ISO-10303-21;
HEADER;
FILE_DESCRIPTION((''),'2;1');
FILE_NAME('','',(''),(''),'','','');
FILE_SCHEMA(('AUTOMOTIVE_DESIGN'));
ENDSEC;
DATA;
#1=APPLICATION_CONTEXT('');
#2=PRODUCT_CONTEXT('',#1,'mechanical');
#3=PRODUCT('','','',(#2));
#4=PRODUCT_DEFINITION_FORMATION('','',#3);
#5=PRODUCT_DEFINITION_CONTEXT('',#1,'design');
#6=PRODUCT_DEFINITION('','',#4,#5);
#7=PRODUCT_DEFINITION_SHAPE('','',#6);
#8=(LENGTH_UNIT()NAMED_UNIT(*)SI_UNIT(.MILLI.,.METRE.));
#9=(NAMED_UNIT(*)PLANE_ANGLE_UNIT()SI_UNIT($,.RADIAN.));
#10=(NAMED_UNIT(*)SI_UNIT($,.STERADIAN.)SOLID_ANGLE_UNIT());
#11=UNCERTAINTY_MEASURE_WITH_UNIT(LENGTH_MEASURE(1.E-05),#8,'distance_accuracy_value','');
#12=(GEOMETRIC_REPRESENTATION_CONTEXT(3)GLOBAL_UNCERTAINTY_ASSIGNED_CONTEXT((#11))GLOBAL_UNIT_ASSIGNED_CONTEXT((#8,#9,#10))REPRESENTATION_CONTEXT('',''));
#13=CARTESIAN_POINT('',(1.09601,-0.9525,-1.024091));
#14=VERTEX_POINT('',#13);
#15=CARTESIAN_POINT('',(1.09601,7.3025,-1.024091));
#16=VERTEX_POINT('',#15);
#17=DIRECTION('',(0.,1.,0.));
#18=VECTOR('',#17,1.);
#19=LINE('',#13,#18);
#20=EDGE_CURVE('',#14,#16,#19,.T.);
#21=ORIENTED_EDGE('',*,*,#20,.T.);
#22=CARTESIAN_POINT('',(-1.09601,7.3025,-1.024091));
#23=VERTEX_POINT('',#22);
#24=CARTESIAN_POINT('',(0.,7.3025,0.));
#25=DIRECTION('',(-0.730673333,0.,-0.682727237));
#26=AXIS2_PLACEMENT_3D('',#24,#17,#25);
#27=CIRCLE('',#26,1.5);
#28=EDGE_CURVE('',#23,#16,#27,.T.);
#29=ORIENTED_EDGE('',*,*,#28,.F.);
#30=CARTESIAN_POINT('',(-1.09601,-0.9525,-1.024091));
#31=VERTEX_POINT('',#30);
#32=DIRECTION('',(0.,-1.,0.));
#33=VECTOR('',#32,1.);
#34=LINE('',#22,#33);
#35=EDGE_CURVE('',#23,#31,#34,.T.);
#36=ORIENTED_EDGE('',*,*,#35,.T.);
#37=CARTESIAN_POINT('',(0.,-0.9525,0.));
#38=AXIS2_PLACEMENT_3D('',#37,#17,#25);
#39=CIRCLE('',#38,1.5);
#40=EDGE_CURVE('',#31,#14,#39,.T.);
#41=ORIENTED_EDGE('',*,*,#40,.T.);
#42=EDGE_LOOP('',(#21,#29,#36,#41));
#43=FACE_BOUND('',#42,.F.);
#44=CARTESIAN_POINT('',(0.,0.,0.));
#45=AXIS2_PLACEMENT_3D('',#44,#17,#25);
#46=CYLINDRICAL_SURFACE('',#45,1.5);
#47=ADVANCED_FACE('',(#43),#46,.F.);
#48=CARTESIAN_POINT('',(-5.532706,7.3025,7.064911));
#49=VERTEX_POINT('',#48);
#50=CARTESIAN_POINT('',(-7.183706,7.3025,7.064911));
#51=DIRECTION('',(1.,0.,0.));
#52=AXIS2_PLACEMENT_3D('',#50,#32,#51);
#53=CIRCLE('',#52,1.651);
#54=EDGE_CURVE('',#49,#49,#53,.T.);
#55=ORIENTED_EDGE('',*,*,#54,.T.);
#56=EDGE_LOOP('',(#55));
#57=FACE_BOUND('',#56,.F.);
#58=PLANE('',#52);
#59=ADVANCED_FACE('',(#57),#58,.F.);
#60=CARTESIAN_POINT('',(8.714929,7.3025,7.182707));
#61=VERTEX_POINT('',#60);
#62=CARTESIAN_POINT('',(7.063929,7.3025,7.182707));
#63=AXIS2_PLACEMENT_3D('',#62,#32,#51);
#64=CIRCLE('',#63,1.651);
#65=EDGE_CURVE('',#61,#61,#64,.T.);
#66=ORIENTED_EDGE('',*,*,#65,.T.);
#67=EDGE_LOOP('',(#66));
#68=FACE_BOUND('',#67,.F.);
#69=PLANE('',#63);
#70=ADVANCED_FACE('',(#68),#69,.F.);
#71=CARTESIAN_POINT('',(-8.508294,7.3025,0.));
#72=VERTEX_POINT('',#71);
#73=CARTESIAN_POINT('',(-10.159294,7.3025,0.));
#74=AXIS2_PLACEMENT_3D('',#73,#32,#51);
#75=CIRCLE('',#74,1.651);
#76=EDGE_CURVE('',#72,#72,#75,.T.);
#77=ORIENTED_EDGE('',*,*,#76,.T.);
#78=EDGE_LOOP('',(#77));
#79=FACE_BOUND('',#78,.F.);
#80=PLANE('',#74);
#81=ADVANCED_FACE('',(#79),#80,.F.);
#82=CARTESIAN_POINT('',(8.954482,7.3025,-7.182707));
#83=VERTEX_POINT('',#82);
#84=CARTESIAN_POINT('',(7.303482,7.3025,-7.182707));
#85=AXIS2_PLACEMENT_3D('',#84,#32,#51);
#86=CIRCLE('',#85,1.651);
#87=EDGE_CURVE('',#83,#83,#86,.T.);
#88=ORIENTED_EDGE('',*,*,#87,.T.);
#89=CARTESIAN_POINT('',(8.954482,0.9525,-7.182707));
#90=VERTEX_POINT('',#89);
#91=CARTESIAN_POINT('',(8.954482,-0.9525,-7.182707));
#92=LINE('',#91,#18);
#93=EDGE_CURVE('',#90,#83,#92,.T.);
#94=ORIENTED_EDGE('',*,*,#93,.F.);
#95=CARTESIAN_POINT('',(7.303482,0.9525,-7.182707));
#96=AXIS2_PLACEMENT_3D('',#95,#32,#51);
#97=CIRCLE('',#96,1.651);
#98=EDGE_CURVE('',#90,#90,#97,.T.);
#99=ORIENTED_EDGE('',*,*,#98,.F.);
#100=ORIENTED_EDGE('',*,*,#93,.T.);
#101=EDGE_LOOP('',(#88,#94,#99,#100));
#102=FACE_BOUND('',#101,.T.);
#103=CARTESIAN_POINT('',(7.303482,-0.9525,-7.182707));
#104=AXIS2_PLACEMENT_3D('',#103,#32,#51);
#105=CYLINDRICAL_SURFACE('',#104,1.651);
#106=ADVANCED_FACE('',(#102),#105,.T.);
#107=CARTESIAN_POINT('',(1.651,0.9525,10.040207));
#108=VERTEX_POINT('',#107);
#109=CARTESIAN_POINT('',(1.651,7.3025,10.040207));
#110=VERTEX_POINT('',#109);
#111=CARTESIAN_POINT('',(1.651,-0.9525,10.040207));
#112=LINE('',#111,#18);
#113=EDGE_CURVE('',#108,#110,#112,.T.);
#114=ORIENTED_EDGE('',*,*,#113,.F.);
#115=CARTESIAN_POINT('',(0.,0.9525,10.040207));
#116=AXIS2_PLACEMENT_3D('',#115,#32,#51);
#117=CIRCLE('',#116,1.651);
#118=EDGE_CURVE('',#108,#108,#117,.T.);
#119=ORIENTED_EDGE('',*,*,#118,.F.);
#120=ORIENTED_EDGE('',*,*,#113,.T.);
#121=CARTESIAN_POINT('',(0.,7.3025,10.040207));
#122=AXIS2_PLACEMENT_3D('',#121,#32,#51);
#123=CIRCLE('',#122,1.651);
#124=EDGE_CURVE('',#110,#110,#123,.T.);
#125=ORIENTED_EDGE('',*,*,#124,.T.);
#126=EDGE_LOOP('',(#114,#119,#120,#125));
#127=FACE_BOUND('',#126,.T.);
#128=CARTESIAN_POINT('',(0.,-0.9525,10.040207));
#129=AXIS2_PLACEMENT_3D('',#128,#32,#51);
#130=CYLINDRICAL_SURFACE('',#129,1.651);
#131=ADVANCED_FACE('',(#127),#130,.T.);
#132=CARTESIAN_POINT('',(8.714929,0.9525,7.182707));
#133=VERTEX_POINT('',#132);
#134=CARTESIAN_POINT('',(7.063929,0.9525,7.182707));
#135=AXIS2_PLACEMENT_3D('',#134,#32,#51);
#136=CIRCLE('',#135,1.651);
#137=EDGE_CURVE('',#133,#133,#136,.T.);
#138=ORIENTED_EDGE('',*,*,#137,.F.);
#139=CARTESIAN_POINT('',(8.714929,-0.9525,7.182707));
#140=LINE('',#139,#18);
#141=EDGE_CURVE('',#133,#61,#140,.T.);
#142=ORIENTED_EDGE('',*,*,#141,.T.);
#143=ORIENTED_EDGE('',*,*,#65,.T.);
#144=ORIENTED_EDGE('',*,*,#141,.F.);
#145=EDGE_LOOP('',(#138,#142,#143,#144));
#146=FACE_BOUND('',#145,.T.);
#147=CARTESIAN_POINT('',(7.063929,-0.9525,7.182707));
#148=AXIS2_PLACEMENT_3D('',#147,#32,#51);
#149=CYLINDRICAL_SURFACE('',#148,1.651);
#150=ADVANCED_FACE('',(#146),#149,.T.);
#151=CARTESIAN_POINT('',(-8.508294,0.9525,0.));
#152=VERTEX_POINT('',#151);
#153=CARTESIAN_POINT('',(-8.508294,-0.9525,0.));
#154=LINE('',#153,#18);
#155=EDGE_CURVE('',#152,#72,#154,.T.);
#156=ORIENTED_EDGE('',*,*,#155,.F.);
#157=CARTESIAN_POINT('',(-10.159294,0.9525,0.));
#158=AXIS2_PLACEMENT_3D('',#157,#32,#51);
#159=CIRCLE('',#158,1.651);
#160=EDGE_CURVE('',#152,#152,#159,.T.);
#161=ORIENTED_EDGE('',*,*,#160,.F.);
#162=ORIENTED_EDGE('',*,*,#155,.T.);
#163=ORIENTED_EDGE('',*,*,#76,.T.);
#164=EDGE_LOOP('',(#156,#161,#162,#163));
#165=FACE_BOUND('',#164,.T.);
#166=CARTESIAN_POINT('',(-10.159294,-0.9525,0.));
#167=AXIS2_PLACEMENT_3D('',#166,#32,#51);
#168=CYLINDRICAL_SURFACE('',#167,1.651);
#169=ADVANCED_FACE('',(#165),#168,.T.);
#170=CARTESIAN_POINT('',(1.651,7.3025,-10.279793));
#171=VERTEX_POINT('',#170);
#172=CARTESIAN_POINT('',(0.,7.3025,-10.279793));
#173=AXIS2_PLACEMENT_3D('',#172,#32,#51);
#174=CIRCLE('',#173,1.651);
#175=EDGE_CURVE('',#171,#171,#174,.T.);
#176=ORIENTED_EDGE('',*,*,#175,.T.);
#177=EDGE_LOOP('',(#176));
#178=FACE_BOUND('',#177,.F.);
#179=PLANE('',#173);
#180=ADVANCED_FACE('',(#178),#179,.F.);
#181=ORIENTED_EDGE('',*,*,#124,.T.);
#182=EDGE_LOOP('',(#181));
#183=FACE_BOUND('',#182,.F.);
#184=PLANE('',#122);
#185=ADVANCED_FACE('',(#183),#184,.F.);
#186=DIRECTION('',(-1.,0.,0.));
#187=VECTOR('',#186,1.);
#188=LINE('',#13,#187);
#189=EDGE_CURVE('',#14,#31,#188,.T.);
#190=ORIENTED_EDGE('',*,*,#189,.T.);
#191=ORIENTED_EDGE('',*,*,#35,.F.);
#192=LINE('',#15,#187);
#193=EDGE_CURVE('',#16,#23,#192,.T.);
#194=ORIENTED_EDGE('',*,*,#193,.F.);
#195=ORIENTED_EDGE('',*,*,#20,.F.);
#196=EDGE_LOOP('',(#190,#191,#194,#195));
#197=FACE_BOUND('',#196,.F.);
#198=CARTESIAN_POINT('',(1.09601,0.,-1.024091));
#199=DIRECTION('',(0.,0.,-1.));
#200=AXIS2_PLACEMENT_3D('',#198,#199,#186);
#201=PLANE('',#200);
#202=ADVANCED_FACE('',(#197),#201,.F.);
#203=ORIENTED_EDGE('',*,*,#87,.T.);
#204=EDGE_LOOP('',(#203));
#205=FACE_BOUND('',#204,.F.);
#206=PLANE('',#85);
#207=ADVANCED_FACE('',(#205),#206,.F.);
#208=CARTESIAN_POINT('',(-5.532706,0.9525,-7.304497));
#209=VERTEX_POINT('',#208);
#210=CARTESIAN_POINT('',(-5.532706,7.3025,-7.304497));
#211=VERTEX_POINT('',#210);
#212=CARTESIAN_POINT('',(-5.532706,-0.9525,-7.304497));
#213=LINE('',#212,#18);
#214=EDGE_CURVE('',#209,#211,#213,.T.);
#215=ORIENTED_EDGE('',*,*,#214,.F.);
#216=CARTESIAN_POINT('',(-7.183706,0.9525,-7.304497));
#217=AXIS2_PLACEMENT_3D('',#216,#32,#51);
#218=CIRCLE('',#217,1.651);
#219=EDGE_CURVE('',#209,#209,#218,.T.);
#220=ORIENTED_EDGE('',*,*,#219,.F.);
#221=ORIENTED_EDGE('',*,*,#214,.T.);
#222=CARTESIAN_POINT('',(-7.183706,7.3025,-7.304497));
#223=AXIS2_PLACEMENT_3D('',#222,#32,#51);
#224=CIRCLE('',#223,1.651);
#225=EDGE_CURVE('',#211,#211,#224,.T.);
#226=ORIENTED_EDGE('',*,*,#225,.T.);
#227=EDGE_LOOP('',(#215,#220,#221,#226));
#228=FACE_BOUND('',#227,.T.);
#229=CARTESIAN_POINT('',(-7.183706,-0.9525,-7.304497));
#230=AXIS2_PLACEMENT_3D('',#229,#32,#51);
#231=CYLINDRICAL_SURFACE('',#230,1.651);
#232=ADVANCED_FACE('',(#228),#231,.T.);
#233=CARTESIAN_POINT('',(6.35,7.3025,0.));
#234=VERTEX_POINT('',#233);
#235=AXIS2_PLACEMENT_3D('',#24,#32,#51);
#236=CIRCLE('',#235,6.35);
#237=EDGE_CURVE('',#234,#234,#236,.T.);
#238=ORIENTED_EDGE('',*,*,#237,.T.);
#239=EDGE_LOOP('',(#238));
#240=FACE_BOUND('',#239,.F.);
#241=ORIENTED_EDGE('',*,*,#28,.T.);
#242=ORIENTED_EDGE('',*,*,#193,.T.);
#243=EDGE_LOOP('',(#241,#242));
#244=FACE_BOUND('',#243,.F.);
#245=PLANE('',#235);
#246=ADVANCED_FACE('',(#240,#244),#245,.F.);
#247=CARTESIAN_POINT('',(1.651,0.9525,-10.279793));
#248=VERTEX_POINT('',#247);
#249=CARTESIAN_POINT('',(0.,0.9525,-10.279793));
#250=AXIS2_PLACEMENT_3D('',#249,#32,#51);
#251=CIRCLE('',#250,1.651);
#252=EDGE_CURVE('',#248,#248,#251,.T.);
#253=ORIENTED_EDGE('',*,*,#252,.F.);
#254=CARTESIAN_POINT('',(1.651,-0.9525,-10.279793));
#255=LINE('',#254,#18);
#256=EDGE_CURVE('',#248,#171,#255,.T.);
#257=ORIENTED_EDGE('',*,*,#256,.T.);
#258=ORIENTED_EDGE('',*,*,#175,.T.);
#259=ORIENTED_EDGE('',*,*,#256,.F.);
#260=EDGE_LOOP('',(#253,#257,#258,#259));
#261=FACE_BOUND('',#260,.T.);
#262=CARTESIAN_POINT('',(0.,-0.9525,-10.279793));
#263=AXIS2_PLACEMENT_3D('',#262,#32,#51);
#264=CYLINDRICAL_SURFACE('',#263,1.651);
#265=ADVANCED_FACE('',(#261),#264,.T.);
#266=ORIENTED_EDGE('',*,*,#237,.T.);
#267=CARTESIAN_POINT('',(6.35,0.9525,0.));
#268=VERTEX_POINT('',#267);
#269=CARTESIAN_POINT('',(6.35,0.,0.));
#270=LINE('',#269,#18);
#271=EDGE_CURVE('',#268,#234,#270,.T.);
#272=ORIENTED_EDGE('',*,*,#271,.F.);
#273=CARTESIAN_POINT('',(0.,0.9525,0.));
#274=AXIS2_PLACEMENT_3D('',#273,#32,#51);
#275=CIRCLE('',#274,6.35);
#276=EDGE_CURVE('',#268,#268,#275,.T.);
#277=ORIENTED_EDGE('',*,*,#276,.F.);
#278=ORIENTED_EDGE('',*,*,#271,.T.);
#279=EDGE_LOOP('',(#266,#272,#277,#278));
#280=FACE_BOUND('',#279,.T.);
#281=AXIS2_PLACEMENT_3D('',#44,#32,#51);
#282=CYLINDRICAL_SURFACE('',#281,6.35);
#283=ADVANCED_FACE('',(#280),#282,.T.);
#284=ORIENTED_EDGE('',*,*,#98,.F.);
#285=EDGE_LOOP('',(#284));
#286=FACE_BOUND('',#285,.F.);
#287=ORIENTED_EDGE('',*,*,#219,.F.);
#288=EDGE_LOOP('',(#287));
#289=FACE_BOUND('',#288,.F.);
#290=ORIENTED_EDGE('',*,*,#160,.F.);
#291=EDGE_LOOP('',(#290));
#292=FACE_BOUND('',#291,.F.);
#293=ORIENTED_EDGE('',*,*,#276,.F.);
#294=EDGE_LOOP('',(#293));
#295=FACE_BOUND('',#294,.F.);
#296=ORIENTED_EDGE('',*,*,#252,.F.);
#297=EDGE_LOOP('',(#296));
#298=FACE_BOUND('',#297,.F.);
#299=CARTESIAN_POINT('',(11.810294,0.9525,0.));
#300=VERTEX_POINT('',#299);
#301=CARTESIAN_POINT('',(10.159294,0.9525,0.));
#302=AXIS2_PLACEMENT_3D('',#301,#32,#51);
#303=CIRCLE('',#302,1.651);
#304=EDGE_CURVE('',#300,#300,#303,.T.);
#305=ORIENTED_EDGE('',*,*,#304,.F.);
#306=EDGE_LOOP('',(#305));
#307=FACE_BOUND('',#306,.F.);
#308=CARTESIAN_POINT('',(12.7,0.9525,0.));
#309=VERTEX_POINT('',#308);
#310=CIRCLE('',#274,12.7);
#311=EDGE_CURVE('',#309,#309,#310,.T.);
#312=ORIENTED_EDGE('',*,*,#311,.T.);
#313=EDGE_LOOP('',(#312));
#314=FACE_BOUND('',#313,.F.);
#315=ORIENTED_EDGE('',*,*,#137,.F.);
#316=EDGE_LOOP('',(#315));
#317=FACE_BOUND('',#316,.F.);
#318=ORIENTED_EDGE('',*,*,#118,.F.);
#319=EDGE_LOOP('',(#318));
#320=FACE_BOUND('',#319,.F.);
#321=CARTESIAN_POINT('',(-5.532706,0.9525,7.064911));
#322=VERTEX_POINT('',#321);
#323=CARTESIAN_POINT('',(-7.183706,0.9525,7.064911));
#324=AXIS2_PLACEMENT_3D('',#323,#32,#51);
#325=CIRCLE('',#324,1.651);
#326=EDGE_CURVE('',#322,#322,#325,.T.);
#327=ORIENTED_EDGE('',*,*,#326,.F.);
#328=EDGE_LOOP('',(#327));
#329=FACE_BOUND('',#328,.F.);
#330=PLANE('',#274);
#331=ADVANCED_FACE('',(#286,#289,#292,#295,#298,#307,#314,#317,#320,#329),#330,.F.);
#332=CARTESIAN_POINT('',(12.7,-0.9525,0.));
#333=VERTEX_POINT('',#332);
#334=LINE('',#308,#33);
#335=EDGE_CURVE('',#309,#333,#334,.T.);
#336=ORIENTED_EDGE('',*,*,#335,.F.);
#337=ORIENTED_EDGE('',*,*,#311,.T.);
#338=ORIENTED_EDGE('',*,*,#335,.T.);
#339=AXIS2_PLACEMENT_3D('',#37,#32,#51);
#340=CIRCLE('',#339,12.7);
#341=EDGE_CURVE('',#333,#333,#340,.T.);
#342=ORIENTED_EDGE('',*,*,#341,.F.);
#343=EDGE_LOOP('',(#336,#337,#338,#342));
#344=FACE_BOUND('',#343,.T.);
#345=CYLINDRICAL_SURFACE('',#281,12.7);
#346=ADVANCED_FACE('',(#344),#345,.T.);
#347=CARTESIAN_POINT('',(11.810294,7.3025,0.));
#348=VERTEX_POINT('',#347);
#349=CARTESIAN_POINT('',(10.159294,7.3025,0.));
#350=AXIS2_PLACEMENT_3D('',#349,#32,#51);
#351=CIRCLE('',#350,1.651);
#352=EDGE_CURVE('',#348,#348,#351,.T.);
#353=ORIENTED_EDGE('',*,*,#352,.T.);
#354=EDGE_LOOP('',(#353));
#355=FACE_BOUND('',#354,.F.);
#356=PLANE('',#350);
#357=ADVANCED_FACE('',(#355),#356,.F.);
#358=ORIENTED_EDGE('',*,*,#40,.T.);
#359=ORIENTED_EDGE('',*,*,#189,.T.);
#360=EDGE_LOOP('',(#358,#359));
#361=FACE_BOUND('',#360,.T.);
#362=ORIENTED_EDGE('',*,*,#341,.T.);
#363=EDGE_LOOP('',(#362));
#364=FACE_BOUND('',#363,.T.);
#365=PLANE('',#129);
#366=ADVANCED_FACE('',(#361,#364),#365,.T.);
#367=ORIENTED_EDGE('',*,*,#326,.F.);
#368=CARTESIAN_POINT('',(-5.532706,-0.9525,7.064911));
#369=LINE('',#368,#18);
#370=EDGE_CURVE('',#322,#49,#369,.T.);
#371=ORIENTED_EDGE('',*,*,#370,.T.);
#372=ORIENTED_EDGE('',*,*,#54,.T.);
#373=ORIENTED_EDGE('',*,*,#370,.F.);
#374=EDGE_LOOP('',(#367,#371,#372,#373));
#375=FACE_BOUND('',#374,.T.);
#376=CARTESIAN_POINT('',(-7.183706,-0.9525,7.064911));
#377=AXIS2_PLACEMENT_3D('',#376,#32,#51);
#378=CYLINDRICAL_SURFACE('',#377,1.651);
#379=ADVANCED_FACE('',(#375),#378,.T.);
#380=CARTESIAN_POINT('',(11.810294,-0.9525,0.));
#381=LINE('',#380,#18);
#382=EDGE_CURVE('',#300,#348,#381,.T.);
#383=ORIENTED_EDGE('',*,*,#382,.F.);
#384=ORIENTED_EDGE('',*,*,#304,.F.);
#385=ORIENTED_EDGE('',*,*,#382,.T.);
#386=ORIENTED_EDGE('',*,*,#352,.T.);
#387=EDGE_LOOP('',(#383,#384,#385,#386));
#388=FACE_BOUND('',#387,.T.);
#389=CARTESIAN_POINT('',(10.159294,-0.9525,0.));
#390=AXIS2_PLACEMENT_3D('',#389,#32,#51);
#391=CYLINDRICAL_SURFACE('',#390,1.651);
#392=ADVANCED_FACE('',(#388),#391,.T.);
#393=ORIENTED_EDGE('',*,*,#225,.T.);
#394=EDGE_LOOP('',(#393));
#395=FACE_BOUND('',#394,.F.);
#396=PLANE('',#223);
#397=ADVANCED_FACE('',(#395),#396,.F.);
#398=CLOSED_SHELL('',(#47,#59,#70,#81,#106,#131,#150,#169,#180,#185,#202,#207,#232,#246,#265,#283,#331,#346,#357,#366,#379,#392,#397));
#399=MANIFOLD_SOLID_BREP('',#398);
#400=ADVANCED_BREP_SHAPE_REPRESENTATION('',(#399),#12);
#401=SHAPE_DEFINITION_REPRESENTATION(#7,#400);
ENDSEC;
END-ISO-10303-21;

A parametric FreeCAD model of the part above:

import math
import FreeCAD as App
import Part
import Sketcher
Q = App.Units.Quantity

doc = App.newDocument("Part")
params = doc.addObject("Spreadsheet::Sheet", "Params")
for row, (alias, value) in enumerate([
    ("sketch1_diameter", "1 in"),
    ("sketch1_diameter2", "0.5 in"),
    ("pad1_length", "0.075 in"),
    ("sketch2_diameter", "0.5 in"),
    ("pad2_length", "0.2875 in"),
    ("pad2_length2", "0.0375 in"),
    ("sketch3_diameter", "0.13 in"),
    ("pad3_length", "0.325 in"),
], start=1):
    params.set(f"A{row}", alias)
    params.set(f"B{row}", "=" + value)
    params.setAlias(f"B{row}", alias)

body = doc.addObject("PartDesign::Body", "Body")

sketch1 = body.newObject("Sketcher::SketchObject", "Sketch")
sketch1.AttachmentSupport = (doc.getObject("XZ_Plane"), [""])
sketch1.MapMode = "FlatFace"
sketch1.addGeometry([
    Part.Circle(App.Vector(0, 0, 0), App.Vector(0, 0, 1), 13),
    Part.Circle(App.Vector(0, 0, 0), App.Vector(0, 0, 1), 6),
], False)
sketch1.addConstraint([
    Sketcher.Constraint("Coincident", 0, 3, -1, 1),
    Sketcher.Constraint("Coincident", 1, 3, -1, 1),
    Sketcher.Constraint("Diameter", 0, Q("1 in")),
    Sketcher.Constraint("Diameter", 1, Q("0.5 in")),
])
sketch1.setExpression("Constraints[2]", "Params.sketch1_diameter")
sketch1.setExpression("Constraints[3]", "Params.sketch1_diameter2")
pad1 = body.newObject("PartDesign::Pad", "Pad")
pad1.Profile = sketch1
pad1.setExpression("Length", "Params.pad1_length")
pad1.Midplane = True

sketch2 = body.newObject("Sketcher::SketchObject", "Sketch001")
sketch2.AttachmentSupport = (doc.getObject("XZ_Plane"), [""])
sketch2.MapMode = "FlatFace"
sketch2.addGeometry([
    Part.Circle(App.Vector(0, 0, 0), App.Vector(0, 0, 1), 6.3),
    Part.LineSegment(App.Vector(1.1, -1, 0), App.Vector(-1.1, -1, 0)),
    Part.ArcOfCircle(Part.Circle(App.Vector(0, 0, 0), App.Vector(0, 0, 1), 1.5), math.radians(-43), math.radians(223)),
], False)
sketch2.addConstraint([
    Sketcher.Constraint("Coincident", 1, 1, 2, 1),
    Sketcher.Constraint("Coincident", 2, 2, 1, 2),
    Sketcher.Constraint("Horizontal", 1),
    Sketcher.Constraint("Coincident", 0, 3, -1, 1),
    Sketcher.Constraint("Coincident", 2, 3, -1, 1),
    Sketcher.Constraint("Diameter", 0, Q("0.5 in")),
    Sketcher.Constraint("Radius", 2, Q("1.5 mm")),
    Sketcher.Constraint("DistanceX", 1, 2, 1, 1, Q("0.0863 in")),
])
sketch2.setExpression("Constraints[5]", "Params.sketch2_diameter")
pad2 = body.newObject("PartDesign::Pad", "Pad001")
pad2.Profile = sketch2
pad2.Type = "TwoLengths"
pad2.setExpression("Length", "Params.pad2_length")
pad2.setExpression("Length2", "Params.pad2_length2")
pad2.Reversed = True

sketch3 = body.newObject("Sketcher::SketchObject", "Sketch002")
sketch3.AttachmentSupport = (doc.getObject("XZ_Plane"), [""])
sketch3.MapMode = "FlatFace"
sketch3.AttachmentOffset = App.Placement(App.Vector(0, 0, 0.0375 * 25.4), App.Rotation())
sketch3.addGeometry([
    Part.Circle(App.Vector(0, 10, 0), App.Vector(0, 0, 1), 1.7),
    Part.Circle(App.Vector(7.1, 7.2, 0), App.Vector(0, 0, 1), 1.7),
    Part.Circle(App.Vector(7.3, -7.2, 0), App.Vector(0, 0, 1), 1.7),
    Part.Circle(App.Vector(0, -10.3, 0), App.Vector(0, 0, 1), 1.7),
    Part.Circle(App.Vector(10.2, 0, 0), App.Vector(0, 0, 1), 1.7),
    Part.Circle(App.Vector(-7.2, 7.1, 0), App.Vector(0, 0, 1), 1.7),
    Part.Circle(App.Vector(-10.2, 0, 0), App.Vector(0, 0, 1), 1.7),
    Part.Circle(App.Vector(-7.2, -7.3, 0), App.Vector(0, 0, 1), 1.7),
], False)
sketch3.addConstraint([
    Sketcher.Constraint("Equal", 0, 1),
    Sketcher.Constraint("Equal", 1, 2),
    Sketcher.Constraint("Equal", 2, 3),
    Sketcher.Constraint("Equal", 3, 4),
    Sketcher.Constraint("Equal", 4, 5),
    Sketcher.Constraint("Equal", 5, 6),
    Sketcher.Constraint("Equal", 6, 7),
    Sketcher.Constraint("Symmetric", 4, 3, 6, 3, -1, 1),
    Sketcher.Constraint("PointOnObject", 0, 3, -2),
    Sketcher.Constraint("PointOnObject", 3, 3, -2),
    Sketcher.Constraint("PointOnObject", 4, 3, -1),
    Sketcher.Constraint("Vertical", 5, 3, 7, 3),
    Sketcher.Constraint("Diameter", 0, Q("0.13 in")),
    Sketcher.Constraint("DistanceY", 3, 3, 0, 3, Q("0.8 in")),
    Sketcher.Constraint("DistanceY", 3, 3, 1, 3, Q("0.6875 in")),
    Sketcher.Constraint("DistanceX", 5, 3, 4, 3, Q("17.342999 mm")),
    Sketcher.Constraint("DistanceX", -1, 1, 1, 3, Q("7.063929 mm")),
    Sketcher.Constraint("DistanceX", -1, 1, 2, 3, Q("7.303482 mm")),
    Sketcher.Constraint("DistanceY", -1, 1, 5, 3, Q("7.064911 mm")),
    Sketcher.Constraint("DistanceX", 2, 3, 4, 3, Q("2.855812 mm")),
    Sketcher.Constraint("DistanceY", 2, 3, 5, 3, Q("14.247618 mm")),
    Sketcher.Constraint("DistanceY", 7, 3, 5, 3, Q("14.369409 mm")),
    Sketcher.Constraint("DistanceY", -1, 1, 0, 3, Q("10.040207 mm")),
])
sketch3.setExpression("Constraints[12]", "Params.sketch3_diameter")
pad3 = body.newObject("PartDesign::Pad", "Pad002")
pad3.Profile = sketch3
pad3.setExpression("Length", "Params.pad3_length")
pad3.Reversed = True

doc.recompute()
